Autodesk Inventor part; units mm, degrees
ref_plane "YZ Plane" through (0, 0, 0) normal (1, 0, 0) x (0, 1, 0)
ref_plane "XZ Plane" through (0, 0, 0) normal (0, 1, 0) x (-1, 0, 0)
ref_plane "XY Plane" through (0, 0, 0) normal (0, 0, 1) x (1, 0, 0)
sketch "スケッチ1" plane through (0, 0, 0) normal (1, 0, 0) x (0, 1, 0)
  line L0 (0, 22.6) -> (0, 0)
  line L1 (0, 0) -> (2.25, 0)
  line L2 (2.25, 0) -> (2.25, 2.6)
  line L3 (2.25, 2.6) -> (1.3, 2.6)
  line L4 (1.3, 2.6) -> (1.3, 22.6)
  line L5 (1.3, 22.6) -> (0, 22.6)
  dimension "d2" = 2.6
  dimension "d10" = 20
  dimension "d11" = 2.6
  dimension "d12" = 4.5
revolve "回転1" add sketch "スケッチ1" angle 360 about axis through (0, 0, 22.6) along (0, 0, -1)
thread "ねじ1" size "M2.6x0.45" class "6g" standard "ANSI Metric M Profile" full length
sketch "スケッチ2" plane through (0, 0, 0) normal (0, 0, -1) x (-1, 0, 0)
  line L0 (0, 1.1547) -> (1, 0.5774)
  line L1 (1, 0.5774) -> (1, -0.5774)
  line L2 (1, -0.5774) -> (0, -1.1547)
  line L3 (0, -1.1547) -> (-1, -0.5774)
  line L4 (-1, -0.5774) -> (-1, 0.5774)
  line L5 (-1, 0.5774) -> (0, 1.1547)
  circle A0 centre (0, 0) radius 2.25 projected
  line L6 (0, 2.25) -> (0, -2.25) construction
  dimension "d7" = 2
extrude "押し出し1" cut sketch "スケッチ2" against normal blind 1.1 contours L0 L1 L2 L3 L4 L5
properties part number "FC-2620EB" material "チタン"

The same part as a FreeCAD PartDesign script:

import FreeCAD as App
import Part
import Sketcher

doc = App.newDocument("Part")
params = doc.addObject("Spreadsheet::Sheet", "Params")
for row, (alias, value) in enumerate([
    ("sketch1_height", "20 mm"),
    ("sketch1_height2", "2.6 mm"),
    ("sketch1_width", "1.3 mm"),
    ("sketch1_width2", "2.25 mm"),
    ("revolution_angle", "360 deg"),
    ("pocket1_length", "1.1 mm"),
], start=1):
    params.set(f"A{row}", alias)
    params.set(f"B{row}", "=" + value)
    params.setAlias(f"B{row}", alias)

body = doc.addObject("PartDesign::Body", "Body")

# Sketch on YZ plane
sketch1 = body.newObject("Sketcher::SketchObject", "Sketch")
sketch1.AttachmentSupport = (doc.getObject("YZ_Plane"), [""])
sketch1.MapMode = "FlatFace"
sketch1.addGeometry([
    Part.LineSegment(App.Vector(1.3, 22.6, 0), App.Vector(0, 22.6, 0)),  # 0
    Part.LineSegment(App.Vector(0, 22.6, 0), App.Vector(0, 0, 0)),  # 1
    Part.LineSegment(App.Vector(0, 0, 0), App.Vector(2.2, 0, 0)),  # 2
    Part.LineSegment(App.Vector(2.2, 0, 0), App.Vector(2.2, 2.6, 0)),  # 3
    Part.LineSegment(App.Vector(2.2, 2.6, 0), App.Vector(1.3, 2.6, 0)),  # 4
    Part.LineSegment(App.Vector(1.3, 2.6, 0), App.Vector(1.3, 22.6, 0)),  # 5
], False)
sketch1.addConstraint([
    Sketcher.Constraint("Coincident", 0, 2, 1, 1),
    Sketcher.Constraint("Coincident", 1, 2, 2, 1),
    Sketcher.Constraint("Coincident", 2, 2, 3, 1),
    Sketcher.Constraint("Coincident", 3, 2, 4, 1),
    Sketcher.Constraint("Coincident", 4, 2, 5, 1),
    Sketcher.Constraint("Coincident", 5, 2, 0, 1),
    Sketcher.Constraint("Horizontal", 0),
    Sketcher.Constraint("Vertical", 1),
    Sketcher.Constraint("Horizontal", 2),
    Sketcher.Constraint("Vertical", 3),
    Sketcher.Constraint("Horizontal", 4),
    Sketcher.Constraint("Vertical", 5),
    Sketcher.Constraint("Coincident", 1, 2, -1, 1),
    Sketcher.Constraint("DistanceY", 5, 1, 5, 2, 20.0),
    Sketcher.Constraint("DistanceY", 3, 1, 3, 2, 2.6),
    Sketcher.Constraint("DistanceX", 0, 2, 0, 1, 1.3),
    Sketcher.Constraint("DistanceX", 2, 1, 2, 2, 2.25),
])
sketch1.setExpression("Constraints[13]", "Params.sketch1_height")
sketch1.setExpression("Constraints[14]", "Params.sketch1_height2")
sketch1.setExpression("Constraints[15]", "Params.sketch1_width")
sketch1.setExpression("Constraints[16]", "Params.sketch1_width2")
revolution = body.newObject("PartDesign::Revolution", "Revolution")
revolution.Profile = sketch1
revolution.ReferenceAxis = (sketch1, ["V_Axis"])
revolution.setExpression("Angle", "Params.revolution_angle")

# Sketch on XY plane
sketch2 = body.newObject("Sketcher::SketchObject", "Sketch001")
sketch2.AttachmentSupport = (doc.getObject("XY_Plane"), [""])
sketch2.MapMode = "FlatFace"
sketch2.addGeometry([
    Part.LineSegment(App.Vector(-1, 0.6, 0), App.Vector(0, 1.2, 0)),  # 0
    Part.LineSegment(App.Vector(0, 1.2, 0), App.Vector(1, 0.6, 0)),  # 1
    Part.LineSegment(App.Vector(1, 0.6, 0), App.Vector(1, -0.6, 0)),  # 2
    Part.LineSegment(App.Vector(1, -0.6, 0), App.Vector(0, -1.2, 0)),  # 3
    Part.LineSegment(App.Vector(0, -1.2, 0), App.Vector(-1, -0.6, 0)),  # 4
    Part.LineSegment(App.Vector(-1, -0.6, 0), App.Vector(-1, 0.6, 0)),  # 5
], False)
sketch2.addConstraint([
    Sketcher.Constraint("Coincident", 0, 2, 1, 1),
    Sketcher.Constraint("Coincident", 1, 2, 2, 1),
    Sketcher.Constraint("Coincident", 2, 2, 3, 1),
    Sketcher.Constraint("Coincident", 3, 2, 4, 1),
    Sketcher.Constraint("Coincident", 4, 2, 5, 1),
    Sketcher.Constraint("Coincident", 5, 2, 0, 1),
    Sketcher.Constraint("Vertical", 2),
    Sketcher.Constraint("Vertical", 5),
    Sketcher.Constraint("Symmetric", 0, 2, 3, 2, -1, 1),
    Sketcher.Constraint("Symmetric", 1, 2, 4, 2, -1, 1),
    Sketcher.Constraint("PointOnObject", 0, 2, -2),
    Sketcher.Constraint("Parallel", 0, 3),
    Sketcher.Constraint("Horizontal", 2, 2, 4, 2),
    Sketcher.Constraint("DistanceX", 4, 2, 2, 2, 2.0),
    Sketcher.Constraint("DistanceY", 2, 2, 2, 1, 1.1548),
    Sketcher.Constraint("DistanceY", 2, 2, 0, 2, 1.732),
])
pocket1 = body.newObject("PartDesign::Pocket", "Pocket")
pocket1.Profile = sketch2
pocket1.setExpression("Length", "Params.pocket1_length")
pocket1.Reversed = True

doc.recompute()
